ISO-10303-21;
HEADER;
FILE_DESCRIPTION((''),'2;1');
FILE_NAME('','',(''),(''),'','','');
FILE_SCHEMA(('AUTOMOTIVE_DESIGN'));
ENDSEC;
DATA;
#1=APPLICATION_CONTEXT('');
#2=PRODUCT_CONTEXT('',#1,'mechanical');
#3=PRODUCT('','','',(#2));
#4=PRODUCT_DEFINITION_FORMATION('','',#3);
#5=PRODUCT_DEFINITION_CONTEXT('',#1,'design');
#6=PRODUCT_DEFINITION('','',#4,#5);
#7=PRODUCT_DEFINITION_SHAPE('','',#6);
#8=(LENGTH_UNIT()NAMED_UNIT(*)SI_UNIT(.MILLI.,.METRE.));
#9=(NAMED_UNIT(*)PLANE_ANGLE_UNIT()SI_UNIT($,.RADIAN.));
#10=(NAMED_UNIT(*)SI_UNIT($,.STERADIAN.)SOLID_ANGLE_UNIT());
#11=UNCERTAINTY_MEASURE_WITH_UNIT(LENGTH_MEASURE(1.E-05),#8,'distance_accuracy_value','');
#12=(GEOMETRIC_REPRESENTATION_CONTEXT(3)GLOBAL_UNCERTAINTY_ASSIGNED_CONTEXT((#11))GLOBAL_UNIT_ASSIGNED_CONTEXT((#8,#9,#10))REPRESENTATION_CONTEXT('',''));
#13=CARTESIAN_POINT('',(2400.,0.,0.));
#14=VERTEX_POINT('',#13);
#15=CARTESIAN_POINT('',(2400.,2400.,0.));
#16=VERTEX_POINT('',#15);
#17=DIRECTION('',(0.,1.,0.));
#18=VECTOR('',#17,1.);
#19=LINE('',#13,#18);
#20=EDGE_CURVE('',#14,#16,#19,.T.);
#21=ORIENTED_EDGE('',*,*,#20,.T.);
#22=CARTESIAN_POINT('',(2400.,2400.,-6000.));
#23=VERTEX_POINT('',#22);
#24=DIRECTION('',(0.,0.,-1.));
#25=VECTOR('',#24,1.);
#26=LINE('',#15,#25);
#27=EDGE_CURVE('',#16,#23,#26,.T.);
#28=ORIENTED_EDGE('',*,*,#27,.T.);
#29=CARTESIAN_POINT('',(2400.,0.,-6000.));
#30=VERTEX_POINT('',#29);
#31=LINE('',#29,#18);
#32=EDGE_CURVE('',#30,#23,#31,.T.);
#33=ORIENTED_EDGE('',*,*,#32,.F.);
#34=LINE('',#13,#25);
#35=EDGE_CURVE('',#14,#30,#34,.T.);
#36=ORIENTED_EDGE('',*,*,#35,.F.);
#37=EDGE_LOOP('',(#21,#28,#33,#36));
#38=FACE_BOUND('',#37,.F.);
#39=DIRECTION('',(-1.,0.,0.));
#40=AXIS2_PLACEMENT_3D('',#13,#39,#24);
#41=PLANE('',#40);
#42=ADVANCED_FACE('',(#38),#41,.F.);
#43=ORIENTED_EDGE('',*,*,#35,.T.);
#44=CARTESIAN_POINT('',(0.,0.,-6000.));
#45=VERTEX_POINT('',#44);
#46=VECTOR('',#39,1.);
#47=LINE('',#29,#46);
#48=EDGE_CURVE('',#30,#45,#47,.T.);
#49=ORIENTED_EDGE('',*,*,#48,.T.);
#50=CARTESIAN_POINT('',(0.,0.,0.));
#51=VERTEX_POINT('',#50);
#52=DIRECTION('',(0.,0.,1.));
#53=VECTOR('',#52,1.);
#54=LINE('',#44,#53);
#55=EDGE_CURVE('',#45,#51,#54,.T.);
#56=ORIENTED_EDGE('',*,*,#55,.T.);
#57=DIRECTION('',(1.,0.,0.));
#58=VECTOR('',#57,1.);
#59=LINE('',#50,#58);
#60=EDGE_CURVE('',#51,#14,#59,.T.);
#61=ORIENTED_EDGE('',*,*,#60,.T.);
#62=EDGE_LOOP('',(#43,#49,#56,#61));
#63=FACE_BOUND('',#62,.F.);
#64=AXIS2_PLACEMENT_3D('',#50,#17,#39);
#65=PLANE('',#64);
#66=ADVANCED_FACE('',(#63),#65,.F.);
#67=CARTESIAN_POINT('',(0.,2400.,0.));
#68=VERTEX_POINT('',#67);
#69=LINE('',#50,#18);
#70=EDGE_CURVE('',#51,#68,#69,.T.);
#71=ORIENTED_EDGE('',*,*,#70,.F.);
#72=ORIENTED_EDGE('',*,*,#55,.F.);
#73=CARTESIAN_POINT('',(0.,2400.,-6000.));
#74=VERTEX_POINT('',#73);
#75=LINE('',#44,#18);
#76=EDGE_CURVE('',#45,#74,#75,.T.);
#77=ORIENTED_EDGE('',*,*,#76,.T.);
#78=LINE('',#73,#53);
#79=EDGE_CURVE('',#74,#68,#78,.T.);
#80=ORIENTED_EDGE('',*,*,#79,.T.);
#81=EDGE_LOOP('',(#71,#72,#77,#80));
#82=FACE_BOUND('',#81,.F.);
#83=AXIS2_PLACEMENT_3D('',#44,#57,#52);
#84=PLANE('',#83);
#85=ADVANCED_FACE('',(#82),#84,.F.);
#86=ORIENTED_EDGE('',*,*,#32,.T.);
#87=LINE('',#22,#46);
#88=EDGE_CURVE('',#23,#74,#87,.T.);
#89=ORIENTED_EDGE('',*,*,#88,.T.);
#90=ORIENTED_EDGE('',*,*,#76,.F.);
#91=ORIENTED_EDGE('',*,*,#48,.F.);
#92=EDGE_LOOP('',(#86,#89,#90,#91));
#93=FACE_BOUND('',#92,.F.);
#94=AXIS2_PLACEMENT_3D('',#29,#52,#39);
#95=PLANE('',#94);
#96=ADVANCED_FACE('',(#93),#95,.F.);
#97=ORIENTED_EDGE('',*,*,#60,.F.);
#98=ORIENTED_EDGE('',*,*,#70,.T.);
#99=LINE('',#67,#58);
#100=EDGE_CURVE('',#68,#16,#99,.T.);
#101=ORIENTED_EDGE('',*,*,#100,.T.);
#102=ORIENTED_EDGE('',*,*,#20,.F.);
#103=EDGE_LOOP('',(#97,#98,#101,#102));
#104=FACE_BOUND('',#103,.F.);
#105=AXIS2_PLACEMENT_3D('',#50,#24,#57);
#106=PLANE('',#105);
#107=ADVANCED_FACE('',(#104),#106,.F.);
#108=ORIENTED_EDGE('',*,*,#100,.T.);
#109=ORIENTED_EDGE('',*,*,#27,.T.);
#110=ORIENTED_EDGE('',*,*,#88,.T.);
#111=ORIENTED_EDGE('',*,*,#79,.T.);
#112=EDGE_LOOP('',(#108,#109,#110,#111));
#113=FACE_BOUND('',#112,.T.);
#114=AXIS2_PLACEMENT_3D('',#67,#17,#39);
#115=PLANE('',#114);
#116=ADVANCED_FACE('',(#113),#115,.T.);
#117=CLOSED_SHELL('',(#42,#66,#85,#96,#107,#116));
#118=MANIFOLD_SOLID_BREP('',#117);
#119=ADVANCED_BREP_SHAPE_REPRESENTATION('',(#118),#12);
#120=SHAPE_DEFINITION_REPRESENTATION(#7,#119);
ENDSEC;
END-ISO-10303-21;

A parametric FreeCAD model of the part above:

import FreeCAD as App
import Part
import Sketcher
from FreeCAD import Vector
Q = App.Units.Quantity

doc = App.newDocument("Part")
params = doc.addObject("Spreadsheet::Sheet", "Params")
for row, (alias, value) in enumerate([
    ("sketch1_width", "2400 mm"),
    ("sketch1_height", "6000 mm"),
    ("pad1_length", "2400 mm"),
], start=1):
    params.set(f"A{row}", alias)
    params.set(f"B{row}", "=" + value)
    params.setAlias(f"B{row}", alias)

body = doc.addObject("PartDesign::Body", "Body")

sketch1 = body.newObject("Sketcher::SketchObject", "Sketch")
sketch1.AttachmentSupport = (doc.getObject("XZ_Plane"), [""])
sketch1.MapMode = "FlatFace"
sketch1.addGeometry(Part.LineSegment(Vector(0, -6000, 0), Vector(0, 0, 0)), False)
sketch1.addGeometry(Part.LineSegment(Vector(0, 0, 0), Vector(2400, 0, 0)), False)
sketch1.addGeometry(Part.LineSegment(Vector(2400, 0, 0), Vector(2400, -6000, 0)), False)
sketch1.addGeometry(Part.LineSegment(Vector(2400, -6000, 0), Vector(0, -6000, 0)), False)
sketch1.addConstraint(Sketcher.Constraint("Coincident", 0, 2, 1, 1))
sketch1.addConstraint(Sketcher.Constraint("Coincident", 1, 2, 2, 1))
sketch1.addConstraint(Sketcher.Constraint("Coincident", 2, 2, 3, 1))
sketch1.addConstraint(Sketcher.Constraint("Coincident", 3, 2, 0, 1))
sketch1.addConstraint(Sketcher.Constraint("Vertical", 0))
sketch1.addConstraint(Sketcher.Constraint("Horizontal", 1))
sketch1.addConstraint(Sketcher.Constraint("Vertical", 2))
sketch1.addConstraint(Sketcher.Constraint("Horizontal", 3))
sketch1.addConstraint(Sketcher.Constraint("Coincident", 0, 2, -1, 1))
sketch1.addConstraint(Sketcher.Constraint("DistanceX", 1, 1, 1, 2, Q("2400 mm")))
sketch1.addConstraint(Sketcher.Constraint("DistanceY", 0, 1, 0, 2, Q("6000 mm")))
sketch1.setExpression("Constraints[9]", "Params.sketch1_width")
sketch1.setExpression("Constraints[10]", "Params.sketch1_height")
pad1 = body.newObject("PartDesign::Pad", "Pad")
pad1.Profile = sketch1
pad1.setExpression("Length", "Params.pad1_length")
pad1.Reversed = True

doc.recompute()
